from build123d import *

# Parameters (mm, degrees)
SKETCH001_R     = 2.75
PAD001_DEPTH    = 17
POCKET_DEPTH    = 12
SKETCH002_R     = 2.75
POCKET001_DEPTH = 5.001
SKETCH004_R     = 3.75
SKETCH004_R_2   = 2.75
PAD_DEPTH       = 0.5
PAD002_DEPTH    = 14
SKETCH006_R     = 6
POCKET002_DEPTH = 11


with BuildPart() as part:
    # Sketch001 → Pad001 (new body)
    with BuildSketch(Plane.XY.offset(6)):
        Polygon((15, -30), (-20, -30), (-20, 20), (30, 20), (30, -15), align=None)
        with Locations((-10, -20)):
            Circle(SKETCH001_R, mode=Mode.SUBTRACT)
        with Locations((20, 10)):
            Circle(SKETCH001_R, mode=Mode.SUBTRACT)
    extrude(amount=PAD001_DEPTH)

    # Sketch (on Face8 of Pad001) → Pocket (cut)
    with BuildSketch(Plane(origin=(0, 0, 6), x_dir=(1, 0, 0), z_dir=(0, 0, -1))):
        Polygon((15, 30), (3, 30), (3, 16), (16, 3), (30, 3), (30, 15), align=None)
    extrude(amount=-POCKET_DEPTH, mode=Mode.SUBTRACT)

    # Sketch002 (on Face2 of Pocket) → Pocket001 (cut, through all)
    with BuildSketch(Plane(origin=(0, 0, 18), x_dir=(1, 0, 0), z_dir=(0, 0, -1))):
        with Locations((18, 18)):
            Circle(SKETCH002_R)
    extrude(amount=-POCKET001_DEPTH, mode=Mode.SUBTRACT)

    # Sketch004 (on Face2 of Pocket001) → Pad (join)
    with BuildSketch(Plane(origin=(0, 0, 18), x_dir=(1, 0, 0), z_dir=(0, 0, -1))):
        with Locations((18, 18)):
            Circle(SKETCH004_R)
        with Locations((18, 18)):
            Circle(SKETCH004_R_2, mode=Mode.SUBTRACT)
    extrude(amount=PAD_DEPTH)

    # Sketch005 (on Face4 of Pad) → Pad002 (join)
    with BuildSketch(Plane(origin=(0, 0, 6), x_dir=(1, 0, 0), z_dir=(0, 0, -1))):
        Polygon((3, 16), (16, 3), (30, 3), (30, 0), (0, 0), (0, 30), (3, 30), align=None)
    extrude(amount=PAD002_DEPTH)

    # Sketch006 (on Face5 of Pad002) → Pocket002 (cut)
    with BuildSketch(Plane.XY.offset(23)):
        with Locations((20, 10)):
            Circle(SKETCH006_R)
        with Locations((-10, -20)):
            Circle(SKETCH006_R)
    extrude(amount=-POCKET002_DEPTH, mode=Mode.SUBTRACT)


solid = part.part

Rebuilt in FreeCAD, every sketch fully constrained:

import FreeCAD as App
import Part
import Sketcher
from FreeCAD import Vector

doc = App.newDocument("Part")
body = doc.addObject("PartDesign::Body", "Body")

# Sketch on XY plane
sketch1 = doc.addObject("Sketcher::SketchObject", "Sketch")
body.addObject(sketch1)
sketch1.AttachmentSupport = (doc.XY_Plane, [""])
sketch1.MapMode = "FlatFace"
sketch1.AttachmentOffset = App.Placement(Vector(0, 0, 6), App.Rotation())
sketch1.addGeometry([
    Part.LineSegment(Vector(-20, -30, 0), Vector(15, -30, 0)),  # 0
    Part.LineSegment(Vector(15, -30, 0), Vector(30, -15, 0)),  # 1
    Part.LineSegment(Vector(30, -15, 0), Vector(30, 20, 0)),  # 2
    Part.LineSegment(Vector(30, 20, 0), Vector(-20, 20, 0)),  # 3
    Part.LineSegment(Vector(-20, 20, 0), Vector(-20, -30, 0)),  # 4
    Part.Circle(Vector(-10, -20, 0), Vector(0, 0, 1), 2.8),  # 5
    Part.Circle(Vector(20, 10, 0), Vector(0, 0, 1), 2.8),  # 6
], False)
sketch1.addConstraint([
    Sketcher.Constraint("Coincident", 0, 2, 1, 1),
    Sketcher.Constraint("Coincident", 1, 2, 2, 1),
    Sketcher.Constraint("Coincident", 2, 2, 3, 1),
    Sketcher.Constraint("Coincident", 3, 2, 4, 1),
    Sketcher.Constraint("Coincident", 4, 2, 0, 1),
    Sketcher.Constraint("Horizontal", 0),
    Sketcher.Constraint("Vertical", 2),
    Sketcher.Constraint("Horizontal", 3),
    Sketcher.Constraint("Vertical", 4),
    Sketcher.Constraint("Equal", 5, 6),
    Sketcher.Constraint("Equal", 0, 2),
    Sketcher.Constraint("Equal", 3, 4),
    Sketcher.Constraint("Diameter", 5, 5.5),
    Sketcher.Constraint("DistanceX", 0, 1, 0, 2, 35.0),
    Sketcher.Constraint("DistanceX", 3, 2, 3, 1, 50.0),
    Sketcher.Constraint("DistanceX", 5, 3, -1, 1, 10.0),
    Sketcher.Constraint("DistanceY", 5, 3, -1, 1, 20.0),
    Sketcher.Constraint("DistanceX", -1, 1, 6, 3, 20.0),
    Sketcher.Constraint("DistanceY", -1, 1, 6, 3, 10.0),
    Sketcher.Constraint("DistanceX", -1, 1, 0, 2, 15.0),
    Sketcher.Constraint("DistanceY", 0, 2, -1, 1, 30.0),
])
pad1 = doc.addObject("PartDesign::Pad", "Pad")
body.addObject(pad1)
pad1.Profile = sketch1
pad1.Length = 17

# Sketch on XY plane
sketch2 = doc.addObject("Sketcher::SketchObject", "Sketch001")
body.addObject(sketch2)
sketch2.AttachmentSupport = (doc.XY_Plane, [""])
sketch2.MapMode = "FlatFace"
sketch2.AttachmentOffset = App.Placement(Vector(0, 0, 6), App.Rotation())
sketch2.addGeometry([
    Part.LineSegment(Vector(15, -30, 0), Vector(3, -30, 0)),  # 0
    Part.LineSegment(Vector(3, -30, 0), Vector(3, -16, 0)),  # 1
    Part.LineSegment(Vector(3, -16, 0), Vector(16, -3, 0)),  # 2
    Part.LineSegment(Vector(16, -3, 0), Vector(30, -3, 0)),  # 3
    Part.LineSegment(Vector(30, -3, 0), Vector(30, -15, 0)),  # 4
    Part.LineSegment(Vector(30, -15, 0), Vector(15, -30, 0)),  # 5
], False)
sketch2.addConstraint([
    Sketcher.Constraint("Coincident", 0, 2, 1, 1),
    Sketcher.Constraint("Coincident", 1, 2, 2, 1),
    Sketcher.Constraint("Coincident", 2, 2, 3, 1),
    Sketcher.Constraint("Coincident", 3, 2, 4, 1),
    Sketcher.Constraint("Coincident", 4, 2, 5, 1),
    Sketcher.Constraint("Coincident", 5, 2, 0, 1),
    Sketcher.Constraint("Horizontal", 0),
    Sketcher.Constraint("Vertical", 1),
    Sketcher.Constraint("Horizontal", 3),
    Sketcher.Constraint("Vertical", 4),
    Sketcher.Constraint("Parallel", 2, 5),
    Sketcher.Constraint("Equal", 3, 1),
    Sketcher.Constraint("Equal", 0, 4),
    Sketcher.Constraint("DistanceX", 0, 2, 0, 1, 12.0),
    Sketcher.Constraint("DistanceX", 3, 1, 3, 2, 14.0),
    Sketcher.Constraint("DistanceX", -1, 1, 0, 2, 3.0),
    Sketcher.Constraint("DistanceY", 0, 2, -1, 1, 30.0),
    Sketcher.Constraint("DistanceX", -1, 1, 2, 2, 16.0),
])
pocket1 = doc.addObject("PartDesign::Pocket", "Pocket")
body.addObject(pocket1)
pocket1.Profile = sketch2
pocket1.Length = 12
pocket1.Reversed = True

# Sketch on XY plane
sketch3 = doc.addObject("Sketcher::SketchObject", "Sketch002")
body.addObject(sketch3)
sketch3.AttachmentSupport = (doc.XY_Plane, [""])
sketch3.MapMode = "FlatFace"
sketch3.AttachmentOffset = App.Placement(Vector(0, 0, 18), App.Rotation())
sketch3.addGeometry(Part.Circle(Vector(18, -18, 0), Vector(0, 0, 1), 2.8), False)
sketch3.addConstraint([
    Sketcher.Constraint("Diameter", 0, 5.5),
    Sketcher.Constraint("DistanceX", -1, 1, 0, 3, 18.0),
    Sketcher.Constraint("DistanceY", 0, 3, -1, 1, 18.0),
])
pocket2 = doc.addObject("PartDesign::Pocket", "Pocket001")
body.addObject(pocket2)
pocket2.Profile = sketch3
pocket2.Type = "ThroughAll"
pocket2.Reversed = True

# Sketch on XY plane
sketch4 = doc.addObject("Sketcher::SketchObject", "Sketch003")
body.addObject(sketch4)
sketch4.AttachmentSupport = (doc.XY_Plane, [""])
sketch4.MapMode = "FlatFace"
sketch4.AttachmentOffset = App.Placement(Vector(0, 0, 18), App.Rotation())
sketch4.addGeometry([
    Part.Circle(Vector(18, -18, 0), Vector(0, 0, 1), 3.8),
    Part.Circle(Vector(18, -18, 0), Vector(0, 0, 1), 2.8),
], False)
sketch4.addConstraint([
    Sketcher.Constraint("Coincident", 1, 3, 0, 3),
    Sketcher.Constraint("Diameter", 0, 7.5),
    Sketcher.Constraint("Diameter", 1, 5.5),
    Sketcher.Constraint("DistanceX", -1, 1, 0, 3, 18.0),
    Sketcher.Constraint("DistanceY", 0, 3, -1, 1, 18.0),
])
pad2 = doc.addObject("PartDesign::Pad", "Pad001")
body.addObject(pad2)
pad2.Profile = sketch4
pad2.Length = 0.5
pad2.Reversed = True

# Sketch on XY plane
sketch5 = doc.addObject("Sketcher::SketchObject", "Sketch004")
body.addObject(sketch5)
sketch5.AttachmentSupport = (doc.XY_Plane, [""])
sketch5.MapMode = "FlatFace"
sketch5.AttachmentOffset = App.Placement(Vector(0, 0, 6), App.Rotation())
sketch5.addGeometry([
    Part.LineSegment(Vector(16, -3, 0), Vector(3, -16, 0)),  # 0
    Part.LineSegment(Vector(3, -16, 0), Vector(3, -30, 0)),  # 1
    Part.LineSegment(Vector(3, -30, 0), Vector(0, -30, 0)),  # 2
    Part.LineSegment(Vector(0, -30, 0), Vector(0, 0, 0)),  # 3
    Part.LineSegment(Vector(0, 0, 0), Vector(30, 0, 0)),  # 4
    Part.LineSegment(Vector(30, 0, 0), Vector(30, -3, 0)),  # 5
    Part.LineSegment(Vector(30, -3, 0), Vector(16, -3, 0)),  # 6
], False)
sketch5.addConstraint([
    Sketcher.Constraint("Coincident", 0, 2, 1, 1),
    Sketcher.Constraint("Coincident", 1, 2, 2, 1),
    Sketcher.Constraint("Coincident", 2, 2, 3, 1),
    Sketcher.Constraint("Coincident", 3, 2, 4, 1),
    Sketcher.Constraint("Coincident", 4, 2, 5, 1),
    Sketcher.Constraint("Coincident", 5, 2, 6, 1),
    Sketcher.Constraint("Coincident", 6, 2, 0, 1),
    Sketcher.Constraint("Vertical", 1),
    Sketcher.Constraint("Horizontal", 2),
    Sketcher.Constraint("Vertical", 3),
    Sketcher.Constraint("Horizontal", 4),
    Sketcher.Constraint("Vertical", 5),
    Sketcher.Constraint("Horizontal", 6),
    Sketcher.Constraint("Coincident", 3, 2, -1, 1),
    Sketcher.Constraint("Equal", 6, 1),
    Sketcher.Constraint("Equal", 4, 3),
    Sketcher.Constraint("Equal", 2, 5),
    Sketcher.Constraint("DistanceX", 2, 2, 2, 1, 3.0),
    Sketcher.Constraint("DistanceX", 4, 1, 4, 2, 30.0),
    Sketcher.Constraint("DistanceX", 6, 2, 6, 1, 14.0),
])
pad3 = doc.addObject("PartDesign::Pad", "Pad002")
body.addObject(pad3)
pad3.Profile = sketch5
pad3.Length = 14
pad3.Reversed = True

# Sketch on XY plane
sketch6 = doc.addObject("Sketcher::SketchObject", "Sketch005")
body.addObject(sketch6)
sketch6.AttachmentSupport = (doc.XY_Plane, [""])
sketch6.MapMode = "FlatFace"
sketch6.AttachmentOffset = App.Placement(Vector(0, 0, 23), App.Rotation())
sketch6.addGeometry([
    Part.Circle(Vector(20, 10, 0), Vector(0, 0, 1), 6),
    Part.Circle(Vector(-10, -20, 0), Vector(0, 0, 1), 6),
], False)
sketch6.addConstraint([
    Sketcher.Constraint("Equal", 0, 1),
    Sketcher.Constraint("Diameter", 0, 12.0),
    Sketcher.Constraint("DistanceX", -1, 1, 0, 3, 20.0),
    Sketcher.Constraint("DistanceY", -1, 1, 0, 3, 10.0),
    Sketcher.Constraint("DistanceX", 1, 3, -1, 1, 10.0),
    Sketcher.Constraint("DistanceY", 1, 3, -1, 1, 20.0),
])
pocket3 = doc.addObject("PartDesign::Pocket", "Pocket002")
body.addObject(pocket3)
pocket3.Profile = sketch6
pocket3.Length = 11

doc.recompute()
